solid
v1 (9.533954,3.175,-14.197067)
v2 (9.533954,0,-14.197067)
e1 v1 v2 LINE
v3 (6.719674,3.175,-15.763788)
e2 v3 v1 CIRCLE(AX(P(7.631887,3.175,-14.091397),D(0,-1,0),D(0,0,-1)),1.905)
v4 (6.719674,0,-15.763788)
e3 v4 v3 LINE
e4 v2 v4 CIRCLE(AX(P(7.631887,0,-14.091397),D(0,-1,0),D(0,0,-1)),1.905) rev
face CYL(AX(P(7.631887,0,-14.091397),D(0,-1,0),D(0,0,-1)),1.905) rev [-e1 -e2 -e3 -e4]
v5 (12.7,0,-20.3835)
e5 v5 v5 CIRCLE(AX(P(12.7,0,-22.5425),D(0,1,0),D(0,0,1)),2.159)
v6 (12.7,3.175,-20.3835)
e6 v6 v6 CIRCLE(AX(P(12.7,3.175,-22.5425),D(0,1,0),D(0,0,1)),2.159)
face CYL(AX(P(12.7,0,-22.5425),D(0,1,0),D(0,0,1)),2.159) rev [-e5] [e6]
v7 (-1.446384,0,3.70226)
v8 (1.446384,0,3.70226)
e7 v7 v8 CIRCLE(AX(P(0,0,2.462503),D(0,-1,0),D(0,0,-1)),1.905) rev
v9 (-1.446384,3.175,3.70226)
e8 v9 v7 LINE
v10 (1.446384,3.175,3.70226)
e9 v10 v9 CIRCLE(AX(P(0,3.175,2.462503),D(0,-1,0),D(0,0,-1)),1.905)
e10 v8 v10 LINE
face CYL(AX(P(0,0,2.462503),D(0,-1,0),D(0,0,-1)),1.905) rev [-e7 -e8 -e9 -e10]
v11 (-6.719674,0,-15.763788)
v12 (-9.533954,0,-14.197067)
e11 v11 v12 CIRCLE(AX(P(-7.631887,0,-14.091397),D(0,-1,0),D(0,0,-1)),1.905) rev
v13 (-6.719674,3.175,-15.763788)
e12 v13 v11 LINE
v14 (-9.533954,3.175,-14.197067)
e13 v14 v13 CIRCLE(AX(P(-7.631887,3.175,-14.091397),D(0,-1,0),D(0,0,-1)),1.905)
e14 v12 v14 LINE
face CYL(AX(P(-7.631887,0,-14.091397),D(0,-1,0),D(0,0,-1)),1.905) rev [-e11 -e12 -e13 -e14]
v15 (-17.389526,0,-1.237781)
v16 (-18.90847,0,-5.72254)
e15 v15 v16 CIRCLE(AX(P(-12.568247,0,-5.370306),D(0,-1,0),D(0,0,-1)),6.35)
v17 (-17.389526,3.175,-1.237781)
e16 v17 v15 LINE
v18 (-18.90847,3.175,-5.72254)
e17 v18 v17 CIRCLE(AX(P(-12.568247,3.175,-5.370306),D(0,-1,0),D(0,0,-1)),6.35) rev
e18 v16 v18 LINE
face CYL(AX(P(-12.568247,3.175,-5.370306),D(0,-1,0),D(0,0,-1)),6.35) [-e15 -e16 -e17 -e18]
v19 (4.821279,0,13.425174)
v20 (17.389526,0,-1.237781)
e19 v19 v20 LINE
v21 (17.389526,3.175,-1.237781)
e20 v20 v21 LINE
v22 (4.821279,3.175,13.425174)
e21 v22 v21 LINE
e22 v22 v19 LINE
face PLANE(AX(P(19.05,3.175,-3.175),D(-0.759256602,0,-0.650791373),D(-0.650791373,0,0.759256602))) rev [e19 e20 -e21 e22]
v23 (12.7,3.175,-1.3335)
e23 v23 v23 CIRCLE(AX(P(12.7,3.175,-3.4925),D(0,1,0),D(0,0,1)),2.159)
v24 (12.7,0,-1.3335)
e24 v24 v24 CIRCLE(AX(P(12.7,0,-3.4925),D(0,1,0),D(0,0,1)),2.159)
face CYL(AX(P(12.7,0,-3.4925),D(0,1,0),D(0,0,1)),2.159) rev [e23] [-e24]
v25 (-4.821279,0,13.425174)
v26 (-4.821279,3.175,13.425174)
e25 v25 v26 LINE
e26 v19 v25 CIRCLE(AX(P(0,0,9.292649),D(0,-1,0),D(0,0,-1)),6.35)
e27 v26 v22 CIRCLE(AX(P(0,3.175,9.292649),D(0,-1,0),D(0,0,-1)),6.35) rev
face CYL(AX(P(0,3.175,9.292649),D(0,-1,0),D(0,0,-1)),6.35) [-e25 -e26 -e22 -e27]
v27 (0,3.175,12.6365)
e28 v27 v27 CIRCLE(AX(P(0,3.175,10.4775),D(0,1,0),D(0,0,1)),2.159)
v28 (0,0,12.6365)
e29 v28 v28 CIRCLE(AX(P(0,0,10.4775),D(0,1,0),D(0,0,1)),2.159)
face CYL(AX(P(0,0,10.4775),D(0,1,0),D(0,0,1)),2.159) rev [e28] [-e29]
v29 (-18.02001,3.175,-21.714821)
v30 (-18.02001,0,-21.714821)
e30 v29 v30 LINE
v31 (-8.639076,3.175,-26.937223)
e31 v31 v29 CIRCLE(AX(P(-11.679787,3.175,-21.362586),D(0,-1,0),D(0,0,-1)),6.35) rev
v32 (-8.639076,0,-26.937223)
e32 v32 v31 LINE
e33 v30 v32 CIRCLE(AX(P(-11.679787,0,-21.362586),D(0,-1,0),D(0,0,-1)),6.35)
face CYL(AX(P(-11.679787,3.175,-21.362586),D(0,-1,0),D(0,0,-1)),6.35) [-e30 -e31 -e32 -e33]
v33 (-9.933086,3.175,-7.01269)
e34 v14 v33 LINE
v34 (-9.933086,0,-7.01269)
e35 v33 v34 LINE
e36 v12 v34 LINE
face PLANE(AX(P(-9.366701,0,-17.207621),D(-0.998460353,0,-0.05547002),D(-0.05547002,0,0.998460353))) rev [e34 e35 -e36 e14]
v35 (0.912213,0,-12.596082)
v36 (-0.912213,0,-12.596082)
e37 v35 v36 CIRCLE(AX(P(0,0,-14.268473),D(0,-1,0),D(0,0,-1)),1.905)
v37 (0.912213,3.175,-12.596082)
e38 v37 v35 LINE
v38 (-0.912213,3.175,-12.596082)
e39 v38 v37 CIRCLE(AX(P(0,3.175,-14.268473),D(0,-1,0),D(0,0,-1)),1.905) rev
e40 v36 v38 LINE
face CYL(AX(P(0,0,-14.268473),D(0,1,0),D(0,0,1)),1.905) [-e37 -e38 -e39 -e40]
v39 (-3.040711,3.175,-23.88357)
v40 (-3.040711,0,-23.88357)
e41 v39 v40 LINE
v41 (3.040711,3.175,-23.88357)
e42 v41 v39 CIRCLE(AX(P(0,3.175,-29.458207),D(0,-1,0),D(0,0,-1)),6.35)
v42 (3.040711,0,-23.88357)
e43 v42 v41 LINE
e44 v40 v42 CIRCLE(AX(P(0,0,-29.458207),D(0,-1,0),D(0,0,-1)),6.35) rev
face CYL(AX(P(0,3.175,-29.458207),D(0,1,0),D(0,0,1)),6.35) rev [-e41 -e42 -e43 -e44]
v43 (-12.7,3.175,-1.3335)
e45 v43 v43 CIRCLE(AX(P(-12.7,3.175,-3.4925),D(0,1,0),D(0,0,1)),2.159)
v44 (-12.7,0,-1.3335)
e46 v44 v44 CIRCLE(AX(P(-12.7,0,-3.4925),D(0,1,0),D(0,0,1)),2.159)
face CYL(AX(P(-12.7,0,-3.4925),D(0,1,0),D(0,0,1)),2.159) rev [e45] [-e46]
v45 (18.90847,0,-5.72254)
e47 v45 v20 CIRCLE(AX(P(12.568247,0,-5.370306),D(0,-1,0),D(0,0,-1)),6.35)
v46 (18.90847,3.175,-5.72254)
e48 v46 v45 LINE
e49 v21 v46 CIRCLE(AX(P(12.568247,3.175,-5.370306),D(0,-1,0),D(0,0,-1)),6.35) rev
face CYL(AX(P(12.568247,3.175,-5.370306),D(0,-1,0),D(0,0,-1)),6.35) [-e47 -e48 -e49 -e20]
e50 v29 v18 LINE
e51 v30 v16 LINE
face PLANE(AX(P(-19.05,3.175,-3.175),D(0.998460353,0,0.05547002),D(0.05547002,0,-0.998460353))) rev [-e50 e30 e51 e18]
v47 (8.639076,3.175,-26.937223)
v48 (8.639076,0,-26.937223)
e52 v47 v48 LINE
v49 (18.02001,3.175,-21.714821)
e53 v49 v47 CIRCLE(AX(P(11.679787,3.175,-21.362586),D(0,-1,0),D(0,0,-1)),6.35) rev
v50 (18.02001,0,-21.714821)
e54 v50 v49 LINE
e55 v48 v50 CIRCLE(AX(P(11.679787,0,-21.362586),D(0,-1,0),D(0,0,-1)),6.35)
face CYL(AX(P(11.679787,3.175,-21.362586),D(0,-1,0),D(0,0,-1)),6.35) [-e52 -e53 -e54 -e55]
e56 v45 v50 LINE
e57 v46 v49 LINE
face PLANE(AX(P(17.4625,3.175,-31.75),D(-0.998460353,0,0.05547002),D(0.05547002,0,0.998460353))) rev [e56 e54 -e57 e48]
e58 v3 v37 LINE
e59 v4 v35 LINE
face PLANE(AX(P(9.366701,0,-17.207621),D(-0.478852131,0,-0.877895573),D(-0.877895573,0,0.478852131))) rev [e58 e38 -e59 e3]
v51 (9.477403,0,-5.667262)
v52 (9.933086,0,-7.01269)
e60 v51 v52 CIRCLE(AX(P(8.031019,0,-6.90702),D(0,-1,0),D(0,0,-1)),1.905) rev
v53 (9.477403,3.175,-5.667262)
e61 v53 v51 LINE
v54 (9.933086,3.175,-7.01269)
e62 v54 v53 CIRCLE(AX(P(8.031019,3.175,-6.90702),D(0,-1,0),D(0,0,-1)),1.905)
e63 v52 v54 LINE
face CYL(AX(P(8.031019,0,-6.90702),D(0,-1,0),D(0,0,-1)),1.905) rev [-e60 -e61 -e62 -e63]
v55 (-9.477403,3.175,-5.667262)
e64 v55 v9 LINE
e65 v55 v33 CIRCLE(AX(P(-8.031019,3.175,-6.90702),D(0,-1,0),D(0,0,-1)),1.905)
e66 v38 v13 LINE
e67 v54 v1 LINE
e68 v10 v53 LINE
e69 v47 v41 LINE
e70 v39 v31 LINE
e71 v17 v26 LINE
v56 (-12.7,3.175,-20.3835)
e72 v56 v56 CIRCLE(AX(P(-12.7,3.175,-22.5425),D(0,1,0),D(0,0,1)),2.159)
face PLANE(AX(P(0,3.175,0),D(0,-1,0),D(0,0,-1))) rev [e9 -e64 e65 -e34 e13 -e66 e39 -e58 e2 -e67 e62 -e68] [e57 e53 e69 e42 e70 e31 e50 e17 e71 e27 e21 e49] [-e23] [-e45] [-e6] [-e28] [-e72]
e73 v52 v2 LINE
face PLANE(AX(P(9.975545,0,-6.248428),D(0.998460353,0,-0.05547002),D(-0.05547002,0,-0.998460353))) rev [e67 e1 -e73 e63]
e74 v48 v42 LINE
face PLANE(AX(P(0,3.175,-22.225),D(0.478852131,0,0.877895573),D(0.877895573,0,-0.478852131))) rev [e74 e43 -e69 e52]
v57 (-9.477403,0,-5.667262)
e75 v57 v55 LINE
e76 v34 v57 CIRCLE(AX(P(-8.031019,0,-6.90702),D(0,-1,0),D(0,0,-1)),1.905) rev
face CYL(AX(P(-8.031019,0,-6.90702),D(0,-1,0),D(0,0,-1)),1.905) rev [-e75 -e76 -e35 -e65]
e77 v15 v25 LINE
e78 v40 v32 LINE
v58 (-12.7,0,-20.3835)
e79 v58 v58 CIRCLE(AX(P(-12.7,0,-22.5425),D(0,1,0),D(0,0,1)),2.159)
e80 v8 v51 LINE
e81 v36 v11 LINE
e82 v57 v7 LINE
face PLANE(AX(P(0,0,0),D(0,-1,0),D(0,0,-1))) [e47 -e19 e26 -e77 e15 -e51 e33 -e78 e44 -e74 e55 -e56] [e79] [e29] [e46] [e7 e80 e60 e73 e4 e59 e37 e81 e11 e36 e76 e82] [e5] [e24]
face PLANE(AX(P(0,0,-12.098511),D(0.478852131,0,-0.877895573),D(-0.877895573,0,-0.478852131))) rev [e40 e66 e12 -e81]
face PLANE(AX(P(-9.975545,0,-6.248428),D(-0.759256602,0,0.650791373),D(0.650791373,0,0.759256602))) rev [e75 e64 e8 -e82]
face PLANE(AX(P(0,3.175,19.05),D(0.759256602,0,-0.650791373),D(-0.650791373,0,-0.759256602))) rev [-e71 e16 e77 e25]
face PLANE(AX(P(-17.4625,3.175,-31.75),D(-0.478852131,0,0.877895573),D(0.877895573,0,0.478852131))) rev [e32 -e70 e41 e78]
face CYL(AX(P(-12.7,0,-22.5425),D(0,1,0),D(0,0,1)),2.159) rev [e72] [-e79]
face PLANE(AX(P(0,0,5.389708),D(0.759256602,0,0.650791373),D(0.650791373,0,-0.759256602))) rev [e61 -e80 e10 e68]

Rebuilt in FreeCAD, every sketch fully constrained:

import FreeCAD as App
import Part
import Sketcher
from FreeCAD import Vector
Q = App.Units.Quantity


def edges_at(feature, points):
    """Names of the edges that pass closest to the given points."""
    edges = feature.Shape.Edges
    near = lambda p: min(range(len(edges)), key=lambda i: edges[i].distToShape(Part.Vertex(*p))[0])
    return sorted({f"Edge{near(p) + 1}" for p in points})

doc = App.newDocument("Part")
body = doc.addObject("PartDesign::Body", "Body")

# Sketch on XZ plane
sketch1 = doc.addObject("Sketcher::SketchObject", "Sketch")
body.addObject(sketch1)
sketch1.AttachmentSupport = (doc.XZ_Plane, [""])
sketch1.MapMode = "FlatFace"
sketch1.addGeometry(Part.LineSegment(Vector(0, -22, 0), Vector(-17, -32, 0)), False)
sketch1.addGeometry(Part.LineSegment(Vector(-17, -32, 0), Vector(-19, -3, 0)), False)
sketch1.addGeometry(Part.LineSegment(Vector(-19, -3, 0), Vector(0, 19, 0)), False)
sketch1.addGeometry(Part.LineSegment(Vector(0, 19, 0), Vector(19, -3, 0)), False)
sketch1.addGeometry(Part.LineSegment(Vector(19, -3, 0), Vector(17, -32, 0)), False)
sketch1.addGeometry(Part.LineSegment(Vector(17, -32, 0), Vector(0, -22, 0)), False)
sketch1.addConstraint(Sketcher.Constraint("Coincident", 0, 2, 1, 1))
sketch1.addConstraint(Sketcher.Constraint("Coincident", 1, 2, 2, 1))
sketch1.addConstraint(Sketcher.Constraint("Coincident", 2, 2, 3, 1))
sketch1.addConstraint(Sketcher.Constraint("Coincident", 3, 2, 4, 1))
sketch1.addConstraint(Sketcher.Constraint("Coincident", 4, 2, 5, 1))
sketch1.addConstraint(Sketcher.Constraint("Coincident", 5, 2, 0, 1))
sketch1.addConstraint(Sketcher.Constraint("Symmetric", 1, 2, 3, 2, -2))
sketch1.addConstraint(Sketcher.Constraint("Symmetric", 0, 2, 4, 2, -2))
sketch1.addConstraint(Sketcher.Constraint("PointOnObject", 2, 2, -2))
sketch1.addConstraint(Sketcher.Constraint("PointOnObject", 5, 2, -2))
sketch1.addConstraint(Sketcher.Constraint("DistanceY", 0, 2, 2, 2, Q("2 in")))
sketch1.addConstraint(Sketcher.Constraint("DistanceX", 1, 2, 3, 2, Q("1.5 in")))
sketch1.addConstraint(Sketcher.Constraint("DistanceY", 0, 2, -1, 1, Q("1.25 in")))
sketch1.addConstraint(Sketcher.Constraint("DistanceY", 5, 2, 1, 2, Q("0.75 in")))
sketch1.addConstraint(Sketcher.Constraint("DistanceX", 0, 2, -1, 1, Q("0.6875 in")))
sketch1.addConstraint(Sketcher.Constraint("DistanceY", 1, 2, -1, 1, Q("0.125 in")))
pad1 = doc.addObject("PartDesign::Pad", "Pad")
body.addObject(pad1)
pad1.Profile = sketch1
pad1.Length = Q("0.125 in")
pad1.Reversed = True

# Sketch on XZ plane
sketch2 = doc.addObject("Sketcher::SketchObject", "Sketch001")
body.addObject(sketch2)
sketch2.AttachmentSupport = (doc.XZ_Plane, [""])
sketch2.MapMode = "FlatFace"
sketch2.AttachmentOffset = App.Placement(Vector(0, 0, -0.125 * 25.4), App.Rotation())
sketch2.addGeometry(Part.Circle(Vector(0, 10.5, 0), Vector(0, 0, 1), 2.2), False)
sketch2.addGeometry(Part.Circle(Vector(-12.7, -3.5, 0), Vector(0, 0, 1), 2.2), False)
sketch2.addGeometry(Part.Circle(Vector(12.7, -3.5, 0), Vector(0, 0, 1), 2.2), False)
sketch2.addGeometry(Part.Circle(Vector(-12.7, -22.5, 0), Vector(0, 0, 1), 2.2), False)
sketch2.addGeometry(Part.Circle(Vector(12.7, -22.5, 0), Vector(0, 0, 1), 2.2), False)
sketch2.addConstraint(Sketcher.Constraint("Equal", 0, 1))
sketch2.addConstraint(Sketcher.Constraint("Equal", 1, 2))
sketch2.addConstraint(Sketcher.Constraint("Equal", 2, 3))
sketch2.addConstraint(Sketcher.Constraint("Equal", 3, 4))
sketch2.addConstraint(Sketcher.Constraint("Symmetric", 1, 3, 2, 3, -2))
sketch2.addConstraint(Sketcher.Constraint("Symmetric", 3, 3, 4, 3, -2))
sketch2.addConstraint(Sketcher.Constraint("PointOnObject", 0, 3, -2))
sketch2.addConstraint(Sketcher.Constraint("Vertical", 1, 3, 3, 3))
sketch2.addConstraint(Sketcher.Constraint("Diameter", 0, Q("0.17 in")))
sketch2.addConstraint(Sketcher.Constraint("DistanceX", 1, 3, 2, 3, Q("1 in")))
sketch2.addConstraint(Sketcher.Constraint("DistanceY", 3, 3, 0, 3, Q("1.3 in")))
sketch2.addConstraint(Sketcher.Constraint("DistanceY", 1, 3, 0, 3, Q("0.55 in")))
sketch2.addConstraint(Sketcher.Constraint("DistanceY", -1, 1, 0, 3, Q("0.4125 in")))
pocket1 = doc.addObject("PartDesign::Pocket", "Pocket")
body.addObject(pocket1)
pocket1.Profile = sketch2
pocket1.Type = "ThroughAll"
pocket1.Reversed = True

# Sketch on XZ plane
sketch3 = doc.addObject("Sketcher::SketchObject", "Sketch002")
body.addObject(sketch3)
sketch3.AttachmentSupport = (doc.XZ_Plane, [""])
sketch3.MapMode = "FlatFace"
sketch3.AttachmentOffset = App.Placement(Vector(0, 0, -0.125 * 25.4), App.Rotation())
sketch3.addGeometry(Part.LineSegment(Vector(-9, -17, 0), Vector(-10, -6, 0)), False)
sketch3.addGeometry(Part.LineSegment(Vector(-10, -6, 0), Vector(0, 5, 0)), False)
sketch3.addGeometry(Part.LineSegment(Vector(0, 5, 0), Vector(10, -6, 0)), False)
sketch3.addGeometry(Part.LineSegment(Vector(10, -6, 0), Vector(9, -17, 0)), False)
sketch3.addGeometry(Part.LineSegment(Vector(9, -17, 0), Vector(0, -12, 0)), False)
sketch3.addGeometry(Part.LineSegment(Vector(0, -12, 0), Vector(-9, -17, 0)), False)
sketch3.addConstraint(Sketcher.Constraint("Coincident", 0, 2, 1, 1))
sketch3.addConstraint(Sketcher.Constraint("Coincident", 1, 2, 2, 1))
sketch3.addConstraint(Sketcher.Constraint("Coincident", 2, 2, 3, 1))
sketch3.addConstraint(Sketcher.Constraint("Coincident", 3, 2, 4, 1))
sketch3.addConstraint(Sketcher.Constraint("Coincident", 4, 2, 5, 1))
sketch3.addConstraint(Sketcher.Constraint("Coincident", 5, 2, 0, 1))
sketch3.addConstraint(Sketcher.Constraint("Symmetric", 0, 2, 2, 2, -2))
sketch3.addConstraint(Sketcher.Constraint("Symmetric", 3, 2, 5, 2, -2))
sketch3.addConstraint(Sketcher.Constraint("PointOnObject", 1, 2, -2))
sketch3.addConstraint(Sketcher.Constraint("PointOnObject", 4, 2, -2))
sketch3.addConstraint(Sketcher.Constraint("DistanceX", -1, 1, 3, 2, Q("9.366701 mm")))
sketch3.addConstraint(Sketcher.Constraint("Distance", 0, Q("10.976092 mm")))
sketch3.addConstraint(Sketcher.Constraint("Distance", 1, Q("15.328331 mm")))
sketch3.addConstraint(Sketcher.Constraint("DistanceY", 0, 2, -1, 1, Q("6.248428 mm")))
sketch3.addConstraint(Sketcher.Constraint("DistanceY", -1, 1, 1, 2, Q("5.389708 mm")))
sketch3.addConstraint(Sketcher.Constraint("DistanceY", 4, 2, -1, 1, Q("12.098511 mm")))
pocket2 = doc.addObject("PartDesign::Pocket", "Pocket001")
body.addObject(pocket2)
pocket2.Profile = sketch3
pocket2.Type = "ThroughAll"
pocket2.Reversed = True
doc.recompute()

fillet = doc.addObject("PartDesign::Fillet", "Fillet")
body.addObject(fillet)
fillet.Base = (pocket2, edges_at(pocket2, [
    (-17.462, 1.587, -31.75),
    (0, 1.587, -22.225),
    (17.462, 1.587, -31.75),
    (19.05, 1.587, -3.175),
    (0, 1.587, 19.05),
    (-19.05, 1.587, -3.175),
]))
fillet.Radius = Q("0.25 in")
doc.recompute()

fillet2 = doc.addObject("PartDesign::Fillet", "Fillet001")
body.addObject(fillet2)
fillet2.Base = (fillet, edges_at(fillet, [
    (-9.367, 1.587, -17.208),
    (0, 1.587, -12.099),
    (9.367, 1.587, -17.208),
    (9.976, 1.587, -6.248),
    (0, 1.587, 5.39),
    (-9.976, 1.587, -6.248),
]))
fillet2.Radius = Q("0.075 in")

doc.recompute()
